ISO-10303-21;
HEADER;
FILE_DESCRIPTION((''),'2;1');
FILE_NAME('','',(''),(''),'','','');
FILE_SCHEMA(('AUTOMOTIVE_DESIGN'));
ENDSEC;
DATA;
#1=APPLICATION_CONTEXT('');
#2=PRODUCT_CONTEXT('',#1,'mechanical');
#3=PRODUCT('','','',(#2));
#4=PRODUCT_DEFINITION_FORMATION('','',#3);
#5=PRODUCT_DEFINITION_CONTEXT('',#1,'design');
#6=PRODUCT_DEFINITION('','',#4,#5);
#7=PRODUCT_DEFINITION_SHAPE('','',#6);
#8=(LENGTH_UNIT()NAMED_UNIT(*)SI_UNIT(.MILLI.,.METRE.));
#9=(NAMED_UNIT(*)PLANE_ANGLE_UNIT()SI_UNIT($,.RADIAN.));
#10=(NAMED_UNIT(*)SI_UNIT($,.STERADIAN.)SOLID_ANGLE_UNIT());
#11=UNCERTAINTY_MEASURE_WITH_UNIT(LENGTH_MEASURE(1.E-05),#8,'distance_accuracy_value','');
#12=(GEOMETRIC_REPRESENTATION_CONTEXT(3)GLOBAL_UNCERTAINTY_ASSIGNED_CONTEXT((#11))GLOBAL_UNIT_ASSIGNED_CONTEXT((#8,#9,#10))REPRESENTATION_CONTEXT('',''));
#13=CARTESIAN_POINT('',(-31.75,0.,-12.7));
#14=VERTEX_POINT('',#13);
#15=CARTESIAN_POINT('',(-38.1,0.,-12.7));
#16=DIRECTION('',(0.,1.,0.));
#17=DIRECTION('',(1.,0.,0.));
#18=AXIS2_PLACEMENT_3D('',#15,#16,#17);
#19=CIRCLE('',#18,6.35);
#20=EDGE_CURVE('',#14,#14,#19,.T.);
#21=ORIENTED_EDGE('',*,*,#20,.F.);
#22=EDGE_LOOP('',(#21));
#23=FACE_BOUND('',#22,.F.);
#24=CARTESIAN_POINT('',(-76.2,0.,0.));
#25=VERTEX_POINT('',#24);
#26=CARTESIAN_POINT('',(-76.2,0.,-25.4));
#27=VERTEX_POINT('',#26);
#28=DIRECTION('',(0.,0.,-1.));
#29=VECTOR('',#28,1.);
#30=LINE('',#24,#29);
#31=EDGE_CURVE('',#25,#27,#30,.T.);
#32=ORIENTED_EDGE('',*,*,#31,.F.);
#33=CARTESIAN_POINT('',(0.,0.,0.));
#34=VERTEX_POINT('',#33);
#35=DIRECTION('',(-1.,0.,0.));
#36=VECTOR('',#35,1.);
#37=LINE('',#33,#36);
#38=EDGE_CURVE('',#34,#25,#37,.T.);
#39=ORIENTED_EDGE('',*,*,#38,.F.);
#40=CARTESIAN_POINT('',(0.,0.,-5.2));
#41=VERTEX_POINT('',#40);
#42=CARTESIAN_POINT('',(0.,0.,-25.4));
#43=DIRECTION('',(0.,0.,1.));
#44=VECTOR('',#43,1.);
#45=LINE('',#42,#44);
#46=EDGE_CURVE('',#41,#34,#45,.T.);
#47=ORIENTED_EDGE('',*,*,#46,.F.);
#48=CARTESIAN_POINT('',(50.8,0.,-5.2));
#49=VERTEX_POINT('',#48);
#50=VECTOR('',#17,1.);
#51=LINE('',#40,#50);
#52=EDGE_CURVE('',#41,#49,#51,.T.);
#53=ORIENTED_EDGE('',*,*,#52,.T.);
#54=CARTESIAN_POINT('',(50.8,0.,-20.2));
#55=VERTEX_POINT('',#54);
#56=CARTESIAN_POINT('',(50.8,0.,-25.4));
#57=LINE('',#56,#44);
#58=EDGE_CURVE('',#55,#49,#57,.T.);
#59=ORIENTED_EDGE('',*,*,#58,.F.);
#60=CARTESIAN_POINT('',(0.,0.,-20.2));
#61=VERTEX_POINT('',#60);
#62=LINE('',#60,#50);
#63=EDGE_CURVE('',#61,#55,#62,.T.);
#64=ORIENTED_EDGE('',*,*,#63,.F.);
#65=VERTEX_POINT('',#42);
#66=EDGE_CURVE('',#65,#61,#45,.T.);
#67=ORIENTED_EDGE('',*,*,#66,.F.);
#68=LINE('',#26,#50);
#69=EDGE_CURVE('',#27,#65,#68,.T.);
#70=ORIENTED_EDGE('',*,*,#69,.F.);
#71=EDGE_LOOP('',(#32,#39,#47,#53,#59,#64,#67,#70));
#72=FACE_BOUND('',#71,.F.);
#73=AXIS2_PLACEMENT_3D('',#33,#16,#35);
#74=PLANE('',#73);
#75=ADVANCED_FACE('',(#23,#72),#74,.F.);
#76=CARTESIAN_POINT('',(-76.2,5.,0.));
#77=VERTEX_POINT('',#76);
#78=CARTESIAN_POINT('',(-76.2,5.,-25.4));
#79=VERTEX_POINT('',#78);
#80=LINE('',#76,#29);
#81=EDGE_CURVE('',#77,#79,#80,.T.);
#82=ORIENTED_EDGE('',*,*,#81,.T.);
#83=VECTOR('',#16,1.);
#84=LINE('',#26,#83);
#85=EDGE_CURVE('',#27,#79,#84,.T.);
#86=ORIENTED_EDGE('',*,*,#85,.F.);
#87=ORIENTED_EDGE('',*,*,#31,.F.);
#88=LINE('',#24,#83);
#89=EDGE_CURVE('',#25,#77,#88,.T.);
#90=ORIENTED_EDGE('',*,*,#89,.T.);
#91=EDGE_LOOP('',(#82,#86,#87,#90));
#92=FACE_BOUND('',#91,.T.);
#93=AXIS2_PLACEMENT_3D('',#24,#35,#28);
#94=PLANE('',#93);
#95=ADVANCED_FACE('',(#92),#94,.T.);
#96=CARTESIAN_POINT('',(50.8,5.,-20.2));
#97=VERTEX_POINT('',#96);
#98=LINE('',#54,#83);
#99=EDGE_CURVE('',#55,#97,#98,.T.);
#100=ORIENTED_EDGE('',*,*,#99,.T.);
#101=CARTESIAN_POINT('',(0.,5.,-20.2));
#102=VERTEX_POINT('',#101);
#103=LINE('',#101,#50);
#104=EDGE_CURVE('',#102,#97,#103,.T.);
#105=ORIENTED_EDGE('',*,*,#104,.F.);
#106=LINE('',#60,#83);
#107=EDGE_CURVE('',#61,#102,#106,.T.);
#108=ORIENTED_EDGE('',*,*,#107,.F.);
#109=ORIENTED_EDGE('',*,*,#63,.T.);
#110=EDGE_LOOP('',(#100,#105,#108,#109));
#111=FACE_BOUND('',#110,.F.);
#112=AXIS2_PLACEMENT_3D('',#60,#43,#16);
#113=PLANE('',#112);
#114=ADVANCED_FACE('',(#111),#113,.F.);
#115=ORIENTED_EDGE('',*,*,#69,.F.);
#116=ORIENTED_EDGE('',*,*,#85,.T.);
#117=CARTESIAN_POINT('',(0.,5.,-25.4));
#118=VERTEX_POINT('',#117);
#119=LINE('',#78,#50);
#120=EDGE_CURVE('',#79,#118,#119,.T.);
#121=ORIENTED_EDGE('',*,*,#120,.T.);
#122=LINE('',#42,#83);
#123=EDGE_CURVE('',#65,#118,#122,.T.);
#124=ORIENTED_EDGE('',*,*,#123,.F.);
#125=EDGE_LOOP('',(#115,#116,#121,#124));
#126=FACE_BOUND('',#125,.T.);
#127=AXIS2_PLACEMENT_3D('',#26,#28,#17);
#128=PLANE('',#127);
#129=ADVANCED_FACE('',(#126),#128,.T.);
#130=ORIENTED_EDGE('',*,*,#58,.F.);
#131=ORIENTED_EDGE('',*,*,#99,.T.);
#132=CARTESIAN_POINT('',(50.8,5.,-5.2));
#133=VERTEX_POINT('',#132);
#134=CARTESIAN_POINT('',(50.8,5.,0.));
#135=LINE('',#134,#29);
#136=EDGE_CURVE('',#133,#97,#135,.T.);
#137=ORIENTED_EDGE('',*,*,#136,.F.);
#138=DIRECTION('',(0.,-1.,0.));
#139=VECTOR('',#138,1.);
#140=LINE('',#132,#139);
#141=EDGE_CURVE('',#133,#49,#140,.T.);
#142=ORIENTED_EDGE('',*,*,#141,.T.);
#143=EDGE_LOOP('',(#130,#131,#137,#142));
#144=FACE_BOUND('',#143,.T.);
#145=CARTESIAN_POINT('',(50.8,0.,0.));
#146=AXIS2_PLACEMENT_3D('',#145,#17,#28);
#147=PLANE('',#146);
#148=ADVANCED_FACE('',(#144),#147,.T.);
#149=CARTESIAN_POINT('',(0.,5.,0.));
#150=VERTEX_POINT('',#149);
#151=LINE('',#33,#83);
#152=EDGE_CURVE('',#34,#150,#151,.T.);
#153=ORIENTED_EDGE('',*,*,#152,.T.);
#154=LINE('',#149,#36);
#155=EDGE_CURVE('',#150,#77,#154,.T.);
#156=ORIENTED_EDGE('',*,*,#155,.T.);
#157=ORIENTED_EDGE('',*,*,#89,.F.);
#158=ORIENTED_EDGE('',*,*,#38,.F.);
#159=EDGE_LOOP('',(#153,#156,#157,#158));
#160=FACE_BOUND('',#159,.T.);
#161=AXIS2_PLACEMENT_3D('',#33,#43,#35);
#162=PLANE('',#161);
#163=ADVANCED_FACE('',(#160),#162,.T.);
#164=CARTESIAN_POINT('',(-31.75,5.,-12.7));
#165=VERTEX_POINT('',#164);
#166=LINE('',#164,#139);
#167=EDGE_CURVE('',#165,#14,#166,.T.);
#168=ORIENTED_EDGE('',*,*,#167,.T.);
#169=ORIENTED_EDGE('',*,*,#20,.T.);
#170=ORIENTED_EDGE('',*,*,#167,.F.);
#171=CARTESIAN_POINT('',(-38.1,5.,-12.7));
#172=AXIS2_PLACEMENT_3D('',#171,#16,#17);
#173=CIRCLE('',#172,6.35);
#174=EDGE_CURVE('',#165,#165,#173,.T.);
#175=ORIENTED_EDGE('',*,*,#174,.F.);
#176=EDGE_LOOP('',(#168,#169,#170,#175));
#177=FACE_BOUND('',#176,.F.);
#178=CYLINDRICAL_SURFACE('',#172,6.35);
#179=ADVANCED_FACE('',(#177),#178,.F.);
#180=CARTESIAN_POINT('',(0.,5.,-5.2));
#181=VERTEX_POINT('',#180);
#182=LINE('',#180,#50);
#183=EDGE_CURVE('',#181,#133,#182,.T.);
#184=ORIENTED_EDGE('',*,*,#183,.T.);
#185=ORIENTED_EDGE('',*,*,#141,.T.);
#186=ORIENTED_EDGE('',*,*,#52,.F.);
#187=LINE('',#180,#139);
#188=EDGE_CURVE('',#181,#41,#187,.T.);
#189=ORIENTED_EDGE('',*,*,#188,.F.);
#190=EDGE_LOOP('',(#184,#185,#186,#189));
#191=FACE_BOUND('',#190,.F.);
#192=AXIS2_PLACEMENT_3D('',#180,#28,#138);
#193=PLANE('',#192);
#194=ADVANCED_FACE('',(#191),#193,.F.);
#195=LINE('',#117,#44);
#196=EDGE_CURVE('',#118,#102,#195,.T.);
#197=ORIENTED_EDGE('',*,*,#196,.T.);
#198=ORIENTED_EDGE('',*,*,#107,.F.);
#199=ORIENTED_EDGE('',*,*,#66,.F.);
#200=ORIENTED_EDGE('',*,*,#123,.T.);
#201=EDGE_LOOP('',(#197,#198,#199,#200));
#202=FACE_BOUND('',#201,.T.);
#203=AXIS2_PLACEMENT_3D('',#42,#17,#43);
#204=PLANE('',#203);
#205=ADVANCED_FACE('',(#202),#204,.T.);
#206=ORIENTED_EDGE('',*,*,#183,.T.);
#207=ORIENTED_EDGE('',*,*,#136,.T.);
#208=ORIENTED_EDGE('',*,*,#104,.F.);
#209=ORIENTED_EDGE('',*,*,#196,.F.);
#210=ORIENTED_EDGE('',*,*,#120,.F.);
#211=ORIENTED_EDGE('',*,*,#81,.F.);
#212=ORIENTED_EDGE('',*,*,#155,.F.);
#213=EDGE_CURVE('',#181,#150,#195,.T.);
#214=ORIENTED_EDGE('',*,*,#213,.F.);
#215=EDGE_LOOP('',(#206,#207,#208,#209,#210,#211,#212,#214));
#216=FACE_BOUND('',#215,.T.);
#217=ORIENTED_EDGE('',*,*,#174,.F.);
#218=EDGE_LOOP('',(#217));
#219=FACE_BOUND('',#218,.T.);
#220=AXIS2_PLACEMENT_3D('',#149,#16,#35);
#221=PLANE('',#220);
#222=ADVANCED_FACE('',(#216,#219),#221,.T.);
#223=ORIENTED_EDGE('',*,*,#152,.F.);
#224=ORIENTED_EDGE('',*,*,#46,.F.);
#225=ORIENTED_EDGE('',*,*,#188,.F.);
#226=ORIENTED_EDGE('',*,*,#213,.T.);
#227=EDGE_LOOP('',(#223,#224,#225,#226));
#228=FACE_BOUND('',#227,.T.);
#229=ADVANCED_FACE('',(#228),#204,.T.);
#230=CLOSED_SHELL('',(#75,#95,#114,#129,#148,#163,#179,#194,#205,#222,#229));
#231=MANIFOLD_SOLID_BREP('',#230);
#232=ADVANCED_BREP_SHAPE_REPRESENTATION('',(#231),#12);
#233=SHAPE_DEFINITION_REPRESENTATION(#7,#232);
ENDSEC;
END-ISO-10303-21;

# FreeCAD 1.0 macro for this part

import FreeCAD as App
import Part
import Sketcher
from FreeCAD import Vector
Q = App.Units.Quantity


def add_polygon(sketch, points):
    """Adds a closed chain of lines whose ends are joined by coincident constraints."""
    first, n = sketch.GeometryCount, len(points)
    for a, b in zip(points, points[1:] + points[:1]):
        sketch.addGeometry(Part.LineSegment(App.Vector(*a, 0), App.Vector(*b, 0)), False)
    for i in range(n):
        sketch.addConstraint(Sketcher.Constraint("Coincident", first + i, 2, first + (i + 1) % n, 1))

doc = App.newDocument("Part")
body = doc.addObject("PartDesign::Body", "Body")

# Sketch on XZ plane
sketch1 = doc.addObject("Sketcher::SketchObject", "Sketch")
body.addObject(sketch1)
sketch1.AttachmentSupport = (doc.XZ_Plane, [""])
sketch1.MapMode = "FlatFace"
add_polygon(sketch1, [(-76, 0), (0, 0), (0, -25), (-76, -25)])  # lines 0-3
sketch1.addConstraint(Sketcher.Constraint("Horizontal", 0))
sketch1.addConstraint(Sketcher.Constraint("Vertical", 1))
sketch1.addConstraint(Sketcher.Constraint("Horizontal", 2))
sketch1.addConstraint(Sketcher.Constraint("Vertical", 3))
sketch1.addConstraint(Sketcher.Constraint("Coincident", 0, 2, -1, 1))
sketch1.addConstraint(Sketcher.Constraint("DistanceX", 0, 1, 0, 2, Q("3 in")))
sketch1.addConstraint(Sketcher.Constraint("DistanceY", 1, 2, 1, 1, Q("1 in")))
pad1 = doc.addObject("PartDesign::Pad", "Pad")
body.addObject(pad1)
pad1.Profile = sketch1
pad1.Length = 5
pad1.Reversed = True

# Sketch on YZ plane
sketch2 = doc.addObject("Sketcher::SketchObject", "Sketch001")
body.addObject(sketch2)
sketch2.AttachmentSupport = (doc.YZ_Plane, [""])
sketch2.MapMode = "FlatFace"
add_polygon(sketch2, [(0, -5), (0, -20), (5, -20), (5, -5)])  # lines 0-3
sketch2.addConstraint(Sketcher.Constraint("Vertical", 0))
sketch2.addConstraint(Sketcher.Constraint("Horizontal", 1))
sketch2.addConstraint(Sketcher.Constraint("Vertical", 2))
sketch2.addConstraint(Sketcher.Constraint("Horizontal", 3))
sketch2.addConstraint(Sketcher.Constraint("PointOnObject", 0, 2, -2))
sketch2.addConstraint(Sketcher.Constraint("DistanceY", 0, 2, 0, 1, Q("15 mm")))
sketch2.addConstraint(Sketcher.Constraint("DistanceY", 2, 2, -1, 1, Q("5.2 mm")))
sketch2.addConstraint(Sketcher.Constraint("DistanceX", 1, 1, 1, 2, Q("5 mm")))
pad2 = doc.addObject("PartDesign::Pad", "Pad001")
body.addObject(pad2)
pad2.Profile = sketch2
pad2.Length = Q("2 in")

# Sketch on XZ plane
sketch3 = doc.addObject("Sketcher::SketchObject", "Sketch002")
body.addObject(sketch3)
sketch3.AttachmentSupport = (doc.XZ_Plane, [""])
sketch3.MapMode = "FlatFace"
sketch3.AttachmentOffset = App.Placement(Vector(0, 0, -5), App.Rotation())
sketch3.addGeometry(Part.Circle(Vector(-38, -13, 0), Vector(0, 0, 1), 6), False)
sketch3.addConstraint(Sketcher.Constraint("Diameter", 0, Q("0.5 in")))
sketch3.addConstraint(Sketcher.Constraint("DistanceX", 0, 3, -1, 1, Q("1.5 in")))
sketch3.addConstraint(Sketcher.Constraint("DistanceY", 0, 3, -1, 1, Q("0.5 in")))
pocket1 = doc.addObject("PartDesign::Pocket", "Pocket")
body.addObject(pocket1)
pocket1.Profile = sketch3
pocket1.Length = Q("2 in")
pocket1.Reversed = True

doc.recompute()
